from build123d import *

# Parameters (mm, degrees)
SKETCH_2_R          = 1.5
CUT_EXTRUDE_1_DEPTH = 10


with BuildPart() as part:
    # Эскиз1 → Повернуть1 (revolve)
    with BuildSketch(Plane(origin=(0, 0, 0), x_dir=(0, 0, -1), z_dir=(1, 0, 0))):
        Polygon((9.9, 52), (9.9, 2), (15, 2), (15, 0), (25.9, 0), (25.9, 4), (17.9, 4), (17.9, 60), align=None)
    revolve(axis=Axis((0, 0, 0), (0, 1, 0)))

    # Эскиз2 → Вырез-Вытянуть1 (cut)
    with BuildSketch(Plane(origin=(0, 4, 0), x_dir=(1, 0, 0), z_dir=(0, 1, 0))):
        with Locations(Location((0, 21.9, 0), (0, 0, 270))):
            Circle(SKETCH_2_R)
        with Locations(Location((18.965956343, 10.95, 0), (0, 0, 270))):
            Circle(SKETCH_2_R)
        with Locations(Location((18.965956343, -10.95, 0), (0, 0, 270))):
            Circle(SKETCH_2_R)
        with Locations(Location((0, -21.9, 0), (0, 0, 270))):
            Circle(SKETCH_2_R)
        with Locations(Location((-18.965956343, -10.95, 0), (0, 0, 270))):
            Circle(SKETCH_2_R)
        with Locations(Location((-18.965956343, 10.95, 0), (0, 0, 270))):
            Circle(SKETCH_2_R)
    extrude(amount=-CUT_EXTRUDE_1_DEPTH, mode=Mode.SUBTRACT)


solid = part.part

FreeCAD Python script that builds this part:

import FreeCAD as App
import Part
import Sketcher
from FreeCAD import Vector
Q = App.Units.Quantity


def add_polygon(sketch, points):
    """Adds a closed chain of lines whose ends are joined by coincident constraints."""
    first, n = sketch.GeometryCount, len(points)
    for a, b in zip(points, points[1:] + points[:1]):
        sketch.addGeometry(Part.LineSegment(App.Vector(*a, 0), App.Vector(*b, 0)), False)
    for i in range(n):
        sketch.addConstraint(Sketcher.Constraint("Coincident", first + i, 2, first + (i + 1) % n, 1))

doc = App.newDocument("Part")
body = doc.addObject("PartDesign::Body", "Body")

# Sketch on YZ plane
sketch1 = doc.addObject("Sketcher::SketchObject", "Sketch")
body.addObject(sketch1)
sketch1.AttachmentSupport = (doc.YZ_Plane, [""])
sketch1.MapMode = "FlatFace"
add_polygon(sketch1, [(52, -9.9), (2, -9.9), (2, -15), (0, -15), (0, -25.9), (4, -25.9), (4, -17.9), (60, -17.9)])  # lines 0-7
sketch1.addConstraint(Sketcher.Constraint("Horizontal", 0))
sketch1.addConstraint(Sketcher.Constraint("Vertical", 1))
sketch1.addConstraint(Sketcher.Constraint("Horizontal", 2))
sketch1.addConstraint(Sketcher.Constraint("Vertical", 3))
sketch1.addConstraint(Sketcher.Constraint("Horizontal", 4))
sketch1.addConstraint(Sketcher.Constraint("Vertical", 5))
sketch1.addConstraint(Sketcher.Constraint("Horizontal", 6))
sketch1.addConstraint(Sketcher.Constraint("PointOnObject", 2, 2, -2))
sketch1.addConstraint(Sketcher.Constraint("DistanceX", 0, 2, 0, 1, 50.0))
sketch1.addConstraint(Sketcher.Constraint("DistanceX", 2, 2, 2, 1, 2.0))
sketch1.addConstraint(Sketcher.Constraint("DistanceX", 4, 1, 4, 2, 4.0))
sketch1.addConstraint(Sketcher.Constraint("DistanceX", 6, 1, 6, 2, 56.0))
sketch1.addConstraint(Sketcher.Constraint("DistanceY", 5, 1, 5, 2, 8.0))
sketch1.addConstraint(Sketcher.Constraint("Angle", 7, Q("135 deg")))
sketch1.addConstraint(Sketcher.Constraint("DistanceY", 1, 2, 1, 1, 5.1))
sketch1.addConstraint(Sketcher.Constraint("DistanceY", 1, 2, -1, 1, 15.0))
revolution = doc.addObject("PartDesign::Revolution", "Revolution")
body.addObject(revolution)
revolution.Profile = sketch1
revolution.ReferenceAxis = (sketch1, ["H_Axis"])
revolution.Angle = 360

# Sketch on XZ plane
sketch2 = doc.addObject("Sketcher::SketchObject", "Sketch001")
body.addObject(sketch2)
sketch2.AttachmentSupport = (doc.XZ_Plane, [""])
sketch2.MapMode = "FlatFace"
sketch2.AttachmentOffset = App.Placement(Vector(0, 0, -4), App.Rotation())
sketch2.addGeometry(Part.Circle(Vector(0, -21.9, 0), Vector(0, 0, 1), 1.5), False)
sketch2.addGeometry(Part.Circle(Vector(19, -10.9, 0), Vector(0, 0, 1), 1.5), False)
sketch2.addGeometry(Part.Circle(Vector(19, 10.9, 0), Vector(0, 0, 1), 1.5), False)
sketch2.addGeometry(Part.Circle(Vector(0, 21.9, 0), Vector(0, 0, 1), 1.5), False)
sketch2.addGeometry(Part.Circle(Vector(-19, 10.9, 0), Vector(0, 0, 1), 1.5), False)
sketch2.addGeometry(Part.Circle(Vector(-19, -10.9, 0), Vector(0, 0, 1), 1.5), False)
sketch2.addConstraint(Sketcher.Constraint("Equal", 0, 1))
sketch2.addConstraint(Sketcher.Constraint("Equal", 1, 2))
sketch2.addConstraint(Sketcher.Constraint("Equal", 2, 3))
sketch2.addConstraint(Sketcher.Constraint("Equal", 3, 4))
sketch2.addConstraint(Sketcher.Constraint("Equal", 4, 5))
sketch2.addConstraint(Sketcher.Constraint("Symmetric", 0, 3, 3, 3, -1, 1))
sketch2.addConstraint(Sketcher.Constraint("Symmetric", 1, 3, 4, 3, -1, 1))
sketch2.addConstraint(Sketcher.Constraint("Symmetric", 2, 3, 5, 3, -1, 1))
sketch2.addConstraint(Sketcher.Constraint("Symmetric", 2, 3, 4, 3, -2))
sketch2.addConstraint(Sketcher.Constraint("PointOnObject", 0, 3, -2))
sketch2.addConstraint(Sketcher.Constraint("Diameter", 0, 3.0))
sketch2.addConstraint(Sketcher.Constraint("DistanceY", 0, 3, -1, 1, 21.9))
sketch2.addConstraint(Sketcher.Constraint("DistanceY", 1, 3, 2, 3, 21.9))
sketch2.addConstraint(Sketcher.Constraint("DistanceX", -1, 1, 1, 3, 18.965956))
pocket1 = doc.addObject("PartDesign::Pocket", "Pocket")
body.addObject(pocket1)
pocket1.Profile = sketch2
pocket1.Length = 10
pocket1.Reversed = True

doc.recompute()
